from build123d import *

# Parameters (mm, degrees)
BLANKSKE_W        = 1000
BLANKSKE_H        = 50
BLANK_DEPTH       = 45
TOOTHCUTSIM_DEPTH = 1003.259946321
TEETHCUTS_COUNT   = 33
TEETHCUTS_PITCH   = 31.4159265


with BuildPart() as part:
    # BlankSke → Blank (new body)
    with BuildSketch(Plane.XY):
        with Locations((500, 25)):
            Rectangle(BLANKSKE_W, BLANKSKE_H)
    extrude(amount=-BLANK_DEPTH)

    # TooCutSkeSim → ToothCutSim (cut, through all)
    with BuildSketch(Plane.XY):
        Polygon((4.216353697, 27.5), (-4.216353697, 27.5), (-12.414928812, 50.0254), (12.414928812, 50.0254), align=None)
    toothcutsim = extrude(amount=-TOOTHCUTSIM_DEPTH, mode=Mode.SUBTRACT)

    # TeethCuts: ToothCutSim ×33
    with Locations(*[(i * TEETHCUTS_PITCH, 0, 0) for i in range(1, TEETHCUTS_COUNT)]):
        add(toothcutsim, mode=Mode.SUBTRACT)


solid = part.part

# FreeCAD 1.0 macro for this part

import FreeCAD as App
import Part
import Sketcher
from FreeCAD import Vector
Q = App.Units.Quantity

doc = App.newDocument("Part")
body = doc.addObject("PartDesign::Body", "Body")

# Sketch on XY plane
sketch1 = doc.addObject("Sketcher::SketchObject", "Sketch")
body.addObject(sketch1)
sketch1.AttachmentSupport = (doc.XY_Plane, [""])
sketch1.MapMode = "FlatFace"
sketch1.addGeometry(Part.LineSegment(Vector(0, 50, 0), Vector(0, 0, 0)), False)
sketch1.addGeometry(Part.LineSegment(Vector(0, 0, 0), Vector(1000, 0, 0)), False)
sketch1.addGeometry(Part.LineSegment(Vector(1000, 0, 0), Vector(1000, 50, 0)), False)
sketch1.addGeometry(Part.LineSegment(Vector(1000, 50, 0), Vector(0, 50, 0)), False)
sketch1.addConstraint(Sketcher.Constraint("Coincident", 0, 2, 1, 1))
sketch1.addConstraint(Sketcher.Constraint("Coincident", 1, 2, 2, 1))
sketch1.addConstraint(Sketcher.Constraint("Coincident", 2, 2, 3, 1))
sketch1.addConstraint(Sketcher.Constraint("Coincident", 3, 2, 0, 1))
sketch1.addConstraint(Sketcher.Constraint("Vertical", 0))
sketch1.addConstraint(Sketcher.Constraint("Horizontal", 1))
sketch1.addConstraint(Sketcher.Constraint("Vertical", 2))
sketch1.addConstraint(Sketcher.Constraint("Horizontal", 3))
sketch1.addConstraint(Sketcher.Constraint("Coincident", 0, 2, -1, 1))
sketch1.addConstraint(Sketcher.Constraint("DistanceX", 1, 1, 1, 2, Q("1000 mm")))
sketch1.addConstraint(Sketcher.Constraint("DistanceY", 0, 2, 0, 1, Q("50 mm")))
pad1 = doc.addObject("PartDesign::Pad", "Pad")
body.addObject(pad1)
pad1.Profile = sketch1
pad1.Length = 45
pad1.Reversed = True

# Sketch on XY plane
sketch2 = doc.addObject("Sketcher::SketchObject", "Sketch001")
body.addObject(sketch2)
sketch2.AttachmentSupport = (doc.XY_Plane, [""])
sketch2.MapMode = "FlatFace"
sketch2.addGeometry(Part.LineSegment(Vector(-4, 28, 0), Vector(4, 28, 0)), False)
sketch2.addGeometry(Part.LineSegment(Vector(4, 28, 0), Vector(12, 50, 0)), False)
sketch2.addGeometry(Part.LineSegment(Vector(12, 50, 0), Vector(-12, 50, 0)), False)
sketch2.addGeometry(Part.LineSegment(Vector(-12, 50, 0), Vector(-4, 28, 0)), False)
sketch2.addConstraint(Sketcher.Constraint("Coincident", 0, 2, 1, 1))
sketch2.addConstraint(Sketcher.Constraint("Coincident", 1, 2, 2, 1))
sketch2.addConstraint(Sketcher.Constraint("Coincident", 2, 2, 3, 1))
sketch2.addConstraint(Sketcher.Constraint("Coincident", 3, 2, 0, 1))
sketch2.addConstraint(Sketcher.Constraint("Horizontal", 0))
sketch2.addConstraint(Sketcher.Constraint("Horizontal", 2))
sketch2.addConstraint(Sketcher.Constraint("Equal", 1, 3))
sketch2.addConstraint(Sketcher.Constraint("Angle", 1, Q("70 deg")))
sketch2.addConstraint(Sketcher.Constraint("DistanceY", -1, 1, 0, 2, Q("27.5 mm")))
sketch2.addConstraint(Sketcher.Constraint("DistanceY", -1, 1, 1, 2, Q("50.0254 mm")))
sketch2.addConstraint(Sketcher.Constraint("DistanceX", 0, 1, 0, 2, Q("8.432707 mm")))
sketch2.addConstraint(Sketcher.Constraint("DistanceX", -1, 1, 1, 2, Q("12.414929 mm")))
pocket1 = doc.addObject("PartDesign::Pocket", "Pocket")
body.addObject(pocket1)
pocket1.Profile = sketch2
pocket1.Type = "ThroughAll"
doc.recompute()

linearpattern = doc.addObject("PartDesign::LinearPattern", "LinearPattern")
body.addObject(linearpattern)
linearpattern.Originals = [pocket1]
linearpattern.Direction = (doc.X_Axis, [""])
linearpattern.Mode = "offset"
linearpattern.Offset = 31.415927
linearpattern.Occurrences = 33
body.Tip = linearpattern

doc.recompute()
